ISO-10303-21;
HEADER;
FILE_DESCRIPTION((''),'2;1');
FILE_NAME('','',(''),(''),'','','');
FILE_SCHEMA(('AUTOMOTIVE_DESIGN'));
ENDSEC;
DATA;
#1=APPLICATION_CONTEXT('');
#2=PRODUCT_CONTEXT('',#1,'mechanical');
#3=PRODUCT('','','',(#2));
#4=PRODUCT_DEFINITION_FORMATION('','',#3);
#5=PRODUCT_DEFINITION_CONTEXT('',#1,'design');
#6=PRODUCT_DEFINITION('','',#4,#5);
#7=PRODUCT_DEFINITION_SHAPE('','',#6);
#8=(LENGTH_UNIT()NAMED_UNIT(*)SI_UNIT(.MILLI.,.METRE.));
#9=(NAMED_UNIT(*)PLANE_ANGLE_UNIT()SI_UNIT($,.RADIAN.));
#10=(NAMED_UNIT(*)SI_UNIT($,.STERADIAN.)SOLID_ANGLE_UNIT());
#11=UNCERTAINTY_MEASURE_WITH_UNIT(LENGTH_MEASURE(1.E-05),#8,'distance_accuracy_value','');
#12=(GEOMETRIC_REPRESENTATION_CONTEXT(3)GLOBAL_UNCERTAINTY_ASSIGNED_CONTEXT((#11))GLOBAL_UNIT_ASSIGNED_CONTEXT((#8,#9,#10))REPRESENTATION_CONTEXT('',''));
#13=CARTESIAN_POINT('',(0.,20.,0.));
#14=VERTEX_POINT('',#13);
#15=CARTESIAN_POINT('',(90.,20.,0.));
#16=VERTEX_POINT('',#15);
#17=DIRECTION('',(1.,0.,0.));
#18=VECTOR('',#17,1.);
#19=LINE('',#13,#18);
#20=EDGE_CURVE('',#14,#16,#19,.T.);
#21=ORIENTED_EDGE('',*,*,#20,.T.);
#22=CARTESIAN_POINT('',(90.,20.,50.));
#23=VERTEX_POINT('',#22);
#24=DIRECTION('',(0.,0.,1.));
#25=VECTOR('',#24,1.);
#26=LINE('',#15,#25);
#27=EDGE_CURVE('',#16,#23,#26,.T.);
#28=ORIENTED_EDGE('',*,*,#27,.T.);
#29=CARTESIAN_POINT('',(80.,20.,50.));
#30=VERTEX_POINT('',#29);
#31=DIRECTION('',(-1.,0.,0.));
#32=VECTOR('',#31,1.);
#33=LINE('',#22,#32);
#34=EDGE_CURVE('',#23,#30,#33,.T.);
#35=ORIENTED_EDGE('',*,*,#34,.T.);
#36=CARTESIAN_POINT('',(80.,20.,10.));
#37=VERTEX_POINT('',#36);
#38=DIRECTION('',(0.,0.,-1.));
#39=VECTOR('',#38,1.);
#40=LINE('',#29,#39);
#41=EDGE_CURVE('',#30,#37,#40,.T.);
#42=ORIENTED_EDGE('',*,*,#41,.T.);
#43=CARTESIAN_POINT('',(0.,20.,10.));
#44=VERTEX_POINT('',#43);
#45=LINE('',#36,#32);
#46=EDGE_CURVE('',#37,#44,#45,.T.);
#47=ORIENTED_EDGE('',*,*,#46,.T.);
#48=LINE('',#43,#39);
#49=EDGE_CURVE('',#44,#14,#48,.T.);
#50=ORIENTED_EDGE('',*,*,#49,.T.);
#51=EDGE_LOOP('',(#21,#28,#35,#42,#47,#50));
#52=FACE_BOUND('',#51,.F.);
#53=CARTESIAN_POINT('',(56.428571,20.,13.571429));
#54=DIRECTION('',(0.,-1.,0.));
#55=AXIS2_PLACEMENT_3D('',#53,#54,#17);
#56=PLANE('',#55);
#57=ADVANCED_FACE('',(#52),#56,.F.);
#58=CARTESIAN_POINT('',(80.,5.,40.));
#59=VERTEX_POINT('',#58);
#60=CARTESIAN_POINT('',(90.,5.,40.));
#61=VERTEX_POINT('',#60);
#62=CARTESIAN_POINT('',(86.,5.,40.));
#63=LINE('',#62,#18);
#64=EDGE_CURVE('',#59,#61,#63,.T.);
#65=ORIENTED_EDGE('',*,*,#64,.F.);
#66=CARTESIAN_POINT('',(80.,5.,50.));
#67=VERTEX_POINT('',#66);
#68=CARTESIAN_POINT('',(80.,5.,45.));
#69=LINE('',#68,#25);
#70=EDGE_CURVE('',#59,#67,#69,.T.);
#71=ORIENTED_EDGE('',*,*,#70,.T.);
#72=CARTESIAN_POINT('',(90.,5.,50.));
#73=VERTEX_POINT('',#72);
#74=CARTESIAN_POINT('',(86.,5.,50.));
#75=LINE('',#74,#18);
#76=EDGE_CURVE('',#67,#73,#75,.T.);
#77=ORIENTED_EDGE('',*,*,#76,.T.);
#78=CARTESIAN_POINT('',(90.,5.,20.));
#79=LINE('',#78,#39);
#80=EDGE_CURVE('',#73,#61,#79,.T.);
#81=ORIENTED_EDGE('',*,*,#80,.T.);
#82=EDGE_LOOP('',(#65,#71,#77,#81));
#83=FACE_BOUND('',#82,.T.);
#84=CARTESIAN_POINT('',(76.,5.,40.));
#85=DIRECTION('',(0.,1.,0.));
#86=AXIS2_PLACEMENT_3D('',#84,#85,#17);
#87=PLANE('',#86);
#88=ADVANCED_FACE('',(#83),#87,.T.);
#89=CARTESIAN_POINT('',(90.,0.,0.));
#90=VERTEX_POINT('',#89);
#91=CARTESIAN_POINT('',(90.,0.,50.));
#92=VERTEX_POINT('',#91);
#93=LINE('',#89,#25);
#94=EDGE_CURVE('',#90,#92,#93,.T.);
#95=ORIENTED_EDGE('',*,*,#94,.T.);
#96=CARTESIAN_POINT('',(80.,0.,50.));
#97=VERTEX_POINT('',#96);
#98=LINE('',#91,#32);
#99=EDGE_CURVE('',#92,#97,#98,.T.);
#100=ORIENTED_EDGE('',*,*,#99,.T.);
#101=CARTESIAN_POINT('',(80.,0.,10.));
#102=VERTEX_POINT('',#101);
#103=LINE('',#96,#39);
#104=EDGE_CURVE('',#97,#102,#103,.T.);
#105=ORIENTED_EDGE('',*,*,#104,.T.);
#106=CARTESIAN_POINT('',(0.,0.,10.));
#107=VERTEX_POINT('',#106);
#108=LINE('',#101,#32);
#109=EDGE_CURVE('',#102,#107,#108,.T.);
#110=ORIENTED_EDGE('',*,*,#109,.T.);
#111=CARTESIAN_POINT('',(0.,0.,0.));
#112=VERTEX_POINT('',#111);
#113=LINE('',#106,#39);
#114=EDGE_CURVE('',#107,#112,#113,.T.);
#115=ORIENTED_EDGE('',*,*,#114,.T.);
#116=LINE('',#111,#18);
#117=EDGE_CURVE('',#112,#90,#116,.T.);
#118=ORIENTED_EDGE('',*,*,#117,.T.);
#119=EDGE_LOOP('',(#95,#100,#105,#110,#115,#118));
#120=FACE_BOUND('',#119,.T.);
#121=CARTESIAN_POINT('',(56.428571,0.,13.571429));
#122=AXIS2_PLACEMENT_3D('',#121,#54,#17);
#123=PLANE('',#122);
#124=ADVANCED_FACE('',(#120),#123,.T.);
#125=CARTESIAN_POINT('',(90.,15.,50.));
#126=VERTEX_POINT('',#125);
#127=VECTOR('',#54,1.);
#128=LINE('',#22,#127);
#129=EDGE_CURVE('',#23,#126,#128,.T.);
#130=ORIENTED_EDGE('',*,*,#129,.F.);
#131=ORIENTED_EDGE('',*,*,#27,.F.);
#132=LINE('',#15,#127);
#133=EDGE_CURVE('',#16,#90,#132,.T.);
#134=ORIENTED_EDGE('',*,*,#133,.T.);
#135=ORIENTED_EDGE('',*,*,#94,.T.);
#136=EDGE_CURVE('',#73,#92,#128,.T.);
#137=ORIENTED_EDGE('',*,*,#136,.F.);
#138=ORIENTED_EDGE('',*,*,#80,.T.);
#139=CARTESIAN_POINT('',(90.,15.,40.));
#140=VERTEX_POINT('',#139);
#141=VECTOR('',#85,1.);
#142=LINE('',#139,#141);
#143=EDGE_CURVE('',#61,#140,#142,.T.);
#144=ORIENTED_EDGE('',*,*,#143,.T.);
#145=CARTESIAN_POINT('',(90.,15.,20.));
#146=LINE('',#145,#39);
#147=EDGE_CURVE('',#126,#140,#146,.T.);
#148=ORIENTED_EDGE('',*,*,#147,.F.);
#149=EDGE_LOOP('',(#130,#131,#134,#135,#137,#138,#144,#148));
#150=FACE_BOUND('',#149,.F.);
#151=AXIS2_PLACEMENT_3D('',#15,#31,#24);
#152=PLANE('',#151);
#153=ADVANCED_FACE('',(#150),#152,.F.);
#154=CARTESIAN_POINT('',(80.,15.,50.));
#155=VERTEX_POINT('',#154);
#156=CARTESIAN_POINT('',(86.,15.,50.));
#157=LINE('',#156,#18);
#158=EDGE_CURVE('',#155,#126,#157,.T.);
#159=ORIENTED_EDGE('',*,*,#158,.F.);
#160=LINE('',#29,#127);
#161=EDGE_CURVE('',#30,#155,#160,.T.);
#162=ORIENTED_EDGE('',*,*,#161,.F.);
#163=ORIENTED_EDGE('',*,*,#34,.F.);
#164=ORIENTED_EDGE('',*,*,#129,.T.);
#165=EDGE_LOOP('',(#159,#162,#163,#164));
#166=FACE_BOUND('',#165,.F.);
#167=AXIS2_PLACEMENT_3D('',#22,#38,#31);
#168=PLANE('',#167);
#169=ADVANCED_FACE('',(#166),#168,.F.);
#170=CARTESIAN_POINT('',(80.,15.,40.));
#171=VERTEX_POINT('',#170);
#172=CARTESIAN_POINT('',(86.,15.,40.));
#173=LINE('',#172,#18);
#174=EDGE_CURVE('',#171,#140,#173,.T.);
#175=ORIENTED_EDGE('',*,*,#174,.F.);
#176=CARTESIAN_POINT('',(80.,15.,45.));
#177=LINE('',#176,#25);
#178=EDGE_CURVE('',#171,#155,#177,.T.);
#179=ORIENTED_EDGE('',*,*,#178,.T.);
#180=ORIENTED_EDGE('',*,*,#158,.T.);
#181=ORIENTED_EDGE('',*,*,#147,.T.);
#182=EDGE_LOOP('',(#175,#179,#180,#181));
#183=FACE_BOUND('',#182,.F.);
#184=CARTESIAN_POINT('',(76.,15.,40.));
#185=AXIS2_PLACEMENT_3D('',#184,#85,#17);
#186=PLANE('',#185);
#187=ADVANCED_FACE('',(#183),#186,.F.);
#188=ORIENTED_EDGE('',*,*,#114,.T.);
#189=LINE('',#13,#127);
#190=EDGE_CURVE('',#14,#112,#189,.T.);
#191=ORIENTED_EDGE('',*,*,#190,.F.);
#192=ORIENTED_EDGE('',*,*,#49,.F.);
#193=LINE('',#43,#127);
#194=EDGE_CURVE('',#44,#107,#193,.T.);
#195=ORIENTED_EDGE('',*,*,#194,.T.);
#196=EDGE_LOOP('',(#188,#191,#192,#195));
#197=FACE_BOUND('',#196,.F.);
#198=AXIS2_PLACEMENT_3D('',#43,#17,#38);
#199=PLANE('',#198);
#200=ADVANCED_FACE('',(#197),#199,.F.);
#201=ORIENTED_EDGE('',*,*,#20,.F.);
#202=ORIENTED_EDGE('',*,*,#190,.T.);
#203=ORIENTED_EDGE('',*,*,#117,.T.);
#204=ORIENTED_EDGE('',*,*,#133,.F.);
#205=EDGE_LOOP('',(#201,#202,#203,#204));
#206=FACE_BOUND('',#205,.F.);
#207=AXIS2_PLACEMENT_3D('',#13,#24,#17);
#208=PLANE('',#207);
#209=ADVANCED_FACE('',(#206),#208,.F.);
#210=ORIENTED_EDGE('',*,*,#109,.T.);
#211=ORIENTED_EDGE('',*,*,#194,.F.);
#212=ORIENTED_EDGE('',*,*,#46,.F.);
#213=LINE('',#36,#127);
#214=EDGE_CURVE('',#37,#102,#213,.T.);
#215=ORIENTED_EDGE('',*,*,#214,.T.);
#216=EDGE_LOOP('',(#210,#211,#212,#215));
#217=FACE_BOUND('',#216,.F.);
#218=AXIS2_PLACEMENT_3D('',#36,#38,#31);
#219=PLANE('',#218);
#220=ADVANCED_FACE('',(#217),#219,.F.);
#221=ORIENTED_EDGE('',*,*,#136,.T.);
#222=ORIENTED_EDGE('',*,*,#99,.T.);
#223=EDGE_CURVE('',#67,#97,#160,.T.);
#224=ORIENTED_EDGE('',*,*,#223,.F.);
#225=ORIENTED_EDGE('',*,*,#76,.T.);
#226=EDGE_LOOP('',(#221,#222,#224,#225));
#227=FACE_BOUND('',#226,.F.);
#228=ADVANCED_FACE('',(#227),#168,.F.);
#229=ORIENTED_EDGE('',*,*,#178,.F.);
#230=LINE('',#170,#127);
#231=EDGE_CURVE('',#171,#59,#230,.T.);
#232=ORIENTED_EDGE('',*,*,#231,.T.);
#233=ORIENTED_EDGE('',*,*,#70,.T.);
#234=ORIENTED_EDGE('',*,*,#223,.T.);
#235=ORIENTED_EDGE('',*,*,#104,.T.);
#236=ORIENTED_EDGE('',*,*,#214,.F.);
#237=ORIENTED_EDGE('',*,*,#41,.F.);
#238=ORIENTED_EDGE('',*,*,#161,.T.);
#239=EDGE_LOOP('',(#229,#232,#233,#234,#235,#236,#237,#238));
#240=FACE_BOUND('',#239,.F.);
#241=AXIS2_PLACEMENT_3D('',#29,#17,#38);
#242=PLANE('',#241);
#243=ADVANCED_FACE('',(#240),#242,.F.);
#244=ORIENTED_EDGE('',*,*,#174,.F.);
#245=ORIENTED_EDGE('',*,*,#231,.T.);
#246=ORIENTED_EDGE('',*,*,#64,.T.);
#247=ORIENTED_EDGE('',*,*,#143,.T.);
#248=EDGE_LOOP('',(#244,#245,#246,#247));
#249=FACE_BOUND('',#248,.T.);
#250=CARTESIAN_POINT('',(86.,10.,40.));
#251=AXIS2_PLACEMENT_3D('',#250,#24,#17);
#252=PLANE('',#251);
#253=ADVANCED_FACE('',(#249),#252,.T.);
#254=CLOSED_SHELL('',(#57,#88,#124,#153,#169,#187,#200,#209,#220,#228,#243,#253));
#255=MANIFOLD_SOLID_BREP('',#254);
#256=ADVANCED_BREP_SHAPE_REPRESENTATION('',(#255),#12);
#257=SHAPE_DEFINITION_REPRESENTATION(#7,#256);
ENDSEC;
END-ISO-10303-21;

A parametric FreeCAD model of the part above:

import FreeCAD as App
import Part
import Sketcher

V = App.Vector
Q = App.Units.Quantity

doc = App.newDocument("Part")
params = doc.addObject("Spreadsheet::Sheet", "Params")
for row, (alias, value) in enumerate([
    ("sketch1_width", "20 mm"),
    ("sketch1_height", "10 mm"),
    ("pad1_length", "10 mm"),
    ("sketch2_width", "90 mm"),
    ("sketch2_width2", "10 mm"),
    ("sketch2_height", "50 mm"),
    ("pad2_length", "20 mm"),
], start=1):
    params.set(f"A{row}", alias)
    params.set(f"B{row}", "=" + value)
    params.setAlias(f"B{row}", alias)

body = doc.addObject("PartDesign::Body", "Body")

# Sketch on XY plane
sketch1 = body.newObject("Sketcher::SketchObject", "Sketch")
sketch1.AttachmentSupport = (doc.getObject("XY_Plane"), [""])
sketch1.MapMode = "FlatFace"
sketch1.AttachmentOffset = App.Placement(V(0, 0, 40), App.Rotation())
sketch1.addGeometry(Part.LineSegment(V(76, 15, 0), V(76, 5, 0)), False)
sketch1.addGeometry(Part.LineSegment(V(76, 5, 0), V(96, 5, 0)), False)
sketch1.addGeometry(Part.LineSegment(V(96, 5, 0), V(96, 15, 0)), False)
sketch1.addGeometry(Part.LineSegment(V(96, 15, 0), V(76, 15, 0)), False)
sketch1.addConstraint(Sketcher.Constraint("Coincident", 0, 2, 1, 1))
sketch1.addConstraint(Sketcher.Constraint("Coincident", 1, 2, 2, 1))
sketch1.addConstraint(Sketcher.Constraint("Coincident", 2, 2, 3, 1))
sketch1.addConstraint(Sketcher.Constraint("Coincident", 3, 2, 0, 1))
sketch1.addConstraint(Sketcher.Constraint("Vertical", 0))
sketch1.addConstraint(Sketcher.Constraint("Horizontal", 1))
sketch1.addConstraint(Sketcher.Constraint("Vertical", 2))
sketch1.addConstraint(Sketcher.Constraint("Horizontal", 3))
sketch1.addConstraint(Sketcher.Constraint("DistanceX", 1, 1, 1, 2, Q("20 mm")))
sketch1.addConstraint(Sketcher.Constraint("DistanceY", 0, 2, 0, 1, Q("10 mm")))
sketch1.addConstraint(Sketcher.Constraint("DistanceX", -1, 1, 0, 2, Q("76 mm")))
sketch1.addConstraint(Sketcher.Constraint("DistanceY", -1, 1, 0, 2, Q("5 mm")))
sketch1.setExpression("Constraints[8]", "Params.sketch1_width")
sketch1.setExpression("Constraints[9]", "Params.sketch1_height")
pad1 = body.newObject("PartDesign::Pad", "Pad")
pad1.Profile = sketch1
pad1.setExpression("Length", "Params.pad1_length")
body2 = doc.addObject("PartDesign::Body", "Body001")

# Sketch on XZ plane
sketch2 = body2.newObject("Sketcher::SketchObject", "Sketch001")
sketch2.AttachmentSupport = (doc.getObject("XZ_Plane001"), [""])
sketch2.MapMode = "FlatFace"
sketch2.addGeometry(Part.LineSegment(V(0, 0, 0), V(90, 0, 0)), False)
sketch2.addGeometry(Part.LineSegment(V(90, 0, 0), V(90, 50, 0)), False)
sketch2.addGeometry(Part.LineSegment(V(90, 50, 0), V(80, 50, 0)), False)
sketch2.addGeometry(Part.LineSegment(V(80, 50, 0), V(80, 10, 0)), False)
sketch2.addGeometry(Part.LineSegment(V(80, 10, 0), V(0, 10, 0)), False)
sketch2.addGeometry(Part.LineSegment(V(0, 10, 0), V(0, 0, 0)), False)
sketch2.addConstraint(Sketcher.Constraint("Coincident", 0, 2, 1, 1))
sketch2.addConstraint(Sketcher.Constraint("Coincident", 1, 2, 2, 1))
sketch2.addConstraint(Sketcher.Constraint("Coincident", 2, 2, 3, 1))
sketch2.addConstraint(Sketcher.Constraint("Coincident", 3, 2, 4, 1))
sketch2.addConstraint(Sketcher.Constraint("Coincident", 4, 2, 5, 1))
sketch2.addConstraint(Sketcher.Constraint("Coincident", 5, 2, 0, 1))
sketch2.addConstraint(Sketcher.Constraint("Horizontal", 0))
sketch2.addConstraint(Sketcher.Constraint("Vertical", 1))
sketch2.addConstraint(Sketcher.Constraint("Horizontal", 2))
sketch2.addConstraint(Sketcher.Constraint("Vertical", 3))
sketch2.addConstraint(Sketcher.Constraint("Horizontal", 4))
sketch2.addConstraint(Sketcher.Constraint("Vertical", 5))
sketch2.addConstraint(Sketcher.Constraint("Coincident", 5, 2, -1, 1))
sketch2.addConstraint(Sketcher.Constraint("Equal", 2, 5))
sketch2.addConstraint(Sketcher.Constraint("DistanceX", 0, 1, 0, 2, Q("90 mm")))
sketch2.addConstraint(Sketcher.Constraint("DistanceX", 2, 2, 2, 1, Q("10 mm")))
sketch2.addConstraint(Sketcher.Constraint("DistanceY", 1, 1, 1, 2, Q("50 mm")))
sketch2.setExpression("Constraints[14]", "Params.sketch2_width")
sketch2.setExpression("Constraints[15]", "Params.sketch2_width2")
sketch2.setExpression("Constraints[16]", "Params.sketch2_height")
pad2 = body2.newObject("PartDesign::Pad", "Pad001")
pad2.Profile = sketch2
pad2.setExpression("Length", "Params.pad2_length")
body3 = doc.addObject("PartDesign::Body", "Body002")
doc.recompute()

body2.Placement = App.Placement(V(0, 20, 0), App.Rotation(V(0, 0, 1), 0))
boolean = body3.newObject("PartDesign::Boolean", "Boolean")
boolean.Type = "Fuse"
boolean.addObjects([body2])
doc.recompute()

boolean2 = body3.newObject("PartDesign::Boolean", "Boolean001")
boolean2.Type = "Cut"
boolean2.addObjects([body])

doc.recompute()
